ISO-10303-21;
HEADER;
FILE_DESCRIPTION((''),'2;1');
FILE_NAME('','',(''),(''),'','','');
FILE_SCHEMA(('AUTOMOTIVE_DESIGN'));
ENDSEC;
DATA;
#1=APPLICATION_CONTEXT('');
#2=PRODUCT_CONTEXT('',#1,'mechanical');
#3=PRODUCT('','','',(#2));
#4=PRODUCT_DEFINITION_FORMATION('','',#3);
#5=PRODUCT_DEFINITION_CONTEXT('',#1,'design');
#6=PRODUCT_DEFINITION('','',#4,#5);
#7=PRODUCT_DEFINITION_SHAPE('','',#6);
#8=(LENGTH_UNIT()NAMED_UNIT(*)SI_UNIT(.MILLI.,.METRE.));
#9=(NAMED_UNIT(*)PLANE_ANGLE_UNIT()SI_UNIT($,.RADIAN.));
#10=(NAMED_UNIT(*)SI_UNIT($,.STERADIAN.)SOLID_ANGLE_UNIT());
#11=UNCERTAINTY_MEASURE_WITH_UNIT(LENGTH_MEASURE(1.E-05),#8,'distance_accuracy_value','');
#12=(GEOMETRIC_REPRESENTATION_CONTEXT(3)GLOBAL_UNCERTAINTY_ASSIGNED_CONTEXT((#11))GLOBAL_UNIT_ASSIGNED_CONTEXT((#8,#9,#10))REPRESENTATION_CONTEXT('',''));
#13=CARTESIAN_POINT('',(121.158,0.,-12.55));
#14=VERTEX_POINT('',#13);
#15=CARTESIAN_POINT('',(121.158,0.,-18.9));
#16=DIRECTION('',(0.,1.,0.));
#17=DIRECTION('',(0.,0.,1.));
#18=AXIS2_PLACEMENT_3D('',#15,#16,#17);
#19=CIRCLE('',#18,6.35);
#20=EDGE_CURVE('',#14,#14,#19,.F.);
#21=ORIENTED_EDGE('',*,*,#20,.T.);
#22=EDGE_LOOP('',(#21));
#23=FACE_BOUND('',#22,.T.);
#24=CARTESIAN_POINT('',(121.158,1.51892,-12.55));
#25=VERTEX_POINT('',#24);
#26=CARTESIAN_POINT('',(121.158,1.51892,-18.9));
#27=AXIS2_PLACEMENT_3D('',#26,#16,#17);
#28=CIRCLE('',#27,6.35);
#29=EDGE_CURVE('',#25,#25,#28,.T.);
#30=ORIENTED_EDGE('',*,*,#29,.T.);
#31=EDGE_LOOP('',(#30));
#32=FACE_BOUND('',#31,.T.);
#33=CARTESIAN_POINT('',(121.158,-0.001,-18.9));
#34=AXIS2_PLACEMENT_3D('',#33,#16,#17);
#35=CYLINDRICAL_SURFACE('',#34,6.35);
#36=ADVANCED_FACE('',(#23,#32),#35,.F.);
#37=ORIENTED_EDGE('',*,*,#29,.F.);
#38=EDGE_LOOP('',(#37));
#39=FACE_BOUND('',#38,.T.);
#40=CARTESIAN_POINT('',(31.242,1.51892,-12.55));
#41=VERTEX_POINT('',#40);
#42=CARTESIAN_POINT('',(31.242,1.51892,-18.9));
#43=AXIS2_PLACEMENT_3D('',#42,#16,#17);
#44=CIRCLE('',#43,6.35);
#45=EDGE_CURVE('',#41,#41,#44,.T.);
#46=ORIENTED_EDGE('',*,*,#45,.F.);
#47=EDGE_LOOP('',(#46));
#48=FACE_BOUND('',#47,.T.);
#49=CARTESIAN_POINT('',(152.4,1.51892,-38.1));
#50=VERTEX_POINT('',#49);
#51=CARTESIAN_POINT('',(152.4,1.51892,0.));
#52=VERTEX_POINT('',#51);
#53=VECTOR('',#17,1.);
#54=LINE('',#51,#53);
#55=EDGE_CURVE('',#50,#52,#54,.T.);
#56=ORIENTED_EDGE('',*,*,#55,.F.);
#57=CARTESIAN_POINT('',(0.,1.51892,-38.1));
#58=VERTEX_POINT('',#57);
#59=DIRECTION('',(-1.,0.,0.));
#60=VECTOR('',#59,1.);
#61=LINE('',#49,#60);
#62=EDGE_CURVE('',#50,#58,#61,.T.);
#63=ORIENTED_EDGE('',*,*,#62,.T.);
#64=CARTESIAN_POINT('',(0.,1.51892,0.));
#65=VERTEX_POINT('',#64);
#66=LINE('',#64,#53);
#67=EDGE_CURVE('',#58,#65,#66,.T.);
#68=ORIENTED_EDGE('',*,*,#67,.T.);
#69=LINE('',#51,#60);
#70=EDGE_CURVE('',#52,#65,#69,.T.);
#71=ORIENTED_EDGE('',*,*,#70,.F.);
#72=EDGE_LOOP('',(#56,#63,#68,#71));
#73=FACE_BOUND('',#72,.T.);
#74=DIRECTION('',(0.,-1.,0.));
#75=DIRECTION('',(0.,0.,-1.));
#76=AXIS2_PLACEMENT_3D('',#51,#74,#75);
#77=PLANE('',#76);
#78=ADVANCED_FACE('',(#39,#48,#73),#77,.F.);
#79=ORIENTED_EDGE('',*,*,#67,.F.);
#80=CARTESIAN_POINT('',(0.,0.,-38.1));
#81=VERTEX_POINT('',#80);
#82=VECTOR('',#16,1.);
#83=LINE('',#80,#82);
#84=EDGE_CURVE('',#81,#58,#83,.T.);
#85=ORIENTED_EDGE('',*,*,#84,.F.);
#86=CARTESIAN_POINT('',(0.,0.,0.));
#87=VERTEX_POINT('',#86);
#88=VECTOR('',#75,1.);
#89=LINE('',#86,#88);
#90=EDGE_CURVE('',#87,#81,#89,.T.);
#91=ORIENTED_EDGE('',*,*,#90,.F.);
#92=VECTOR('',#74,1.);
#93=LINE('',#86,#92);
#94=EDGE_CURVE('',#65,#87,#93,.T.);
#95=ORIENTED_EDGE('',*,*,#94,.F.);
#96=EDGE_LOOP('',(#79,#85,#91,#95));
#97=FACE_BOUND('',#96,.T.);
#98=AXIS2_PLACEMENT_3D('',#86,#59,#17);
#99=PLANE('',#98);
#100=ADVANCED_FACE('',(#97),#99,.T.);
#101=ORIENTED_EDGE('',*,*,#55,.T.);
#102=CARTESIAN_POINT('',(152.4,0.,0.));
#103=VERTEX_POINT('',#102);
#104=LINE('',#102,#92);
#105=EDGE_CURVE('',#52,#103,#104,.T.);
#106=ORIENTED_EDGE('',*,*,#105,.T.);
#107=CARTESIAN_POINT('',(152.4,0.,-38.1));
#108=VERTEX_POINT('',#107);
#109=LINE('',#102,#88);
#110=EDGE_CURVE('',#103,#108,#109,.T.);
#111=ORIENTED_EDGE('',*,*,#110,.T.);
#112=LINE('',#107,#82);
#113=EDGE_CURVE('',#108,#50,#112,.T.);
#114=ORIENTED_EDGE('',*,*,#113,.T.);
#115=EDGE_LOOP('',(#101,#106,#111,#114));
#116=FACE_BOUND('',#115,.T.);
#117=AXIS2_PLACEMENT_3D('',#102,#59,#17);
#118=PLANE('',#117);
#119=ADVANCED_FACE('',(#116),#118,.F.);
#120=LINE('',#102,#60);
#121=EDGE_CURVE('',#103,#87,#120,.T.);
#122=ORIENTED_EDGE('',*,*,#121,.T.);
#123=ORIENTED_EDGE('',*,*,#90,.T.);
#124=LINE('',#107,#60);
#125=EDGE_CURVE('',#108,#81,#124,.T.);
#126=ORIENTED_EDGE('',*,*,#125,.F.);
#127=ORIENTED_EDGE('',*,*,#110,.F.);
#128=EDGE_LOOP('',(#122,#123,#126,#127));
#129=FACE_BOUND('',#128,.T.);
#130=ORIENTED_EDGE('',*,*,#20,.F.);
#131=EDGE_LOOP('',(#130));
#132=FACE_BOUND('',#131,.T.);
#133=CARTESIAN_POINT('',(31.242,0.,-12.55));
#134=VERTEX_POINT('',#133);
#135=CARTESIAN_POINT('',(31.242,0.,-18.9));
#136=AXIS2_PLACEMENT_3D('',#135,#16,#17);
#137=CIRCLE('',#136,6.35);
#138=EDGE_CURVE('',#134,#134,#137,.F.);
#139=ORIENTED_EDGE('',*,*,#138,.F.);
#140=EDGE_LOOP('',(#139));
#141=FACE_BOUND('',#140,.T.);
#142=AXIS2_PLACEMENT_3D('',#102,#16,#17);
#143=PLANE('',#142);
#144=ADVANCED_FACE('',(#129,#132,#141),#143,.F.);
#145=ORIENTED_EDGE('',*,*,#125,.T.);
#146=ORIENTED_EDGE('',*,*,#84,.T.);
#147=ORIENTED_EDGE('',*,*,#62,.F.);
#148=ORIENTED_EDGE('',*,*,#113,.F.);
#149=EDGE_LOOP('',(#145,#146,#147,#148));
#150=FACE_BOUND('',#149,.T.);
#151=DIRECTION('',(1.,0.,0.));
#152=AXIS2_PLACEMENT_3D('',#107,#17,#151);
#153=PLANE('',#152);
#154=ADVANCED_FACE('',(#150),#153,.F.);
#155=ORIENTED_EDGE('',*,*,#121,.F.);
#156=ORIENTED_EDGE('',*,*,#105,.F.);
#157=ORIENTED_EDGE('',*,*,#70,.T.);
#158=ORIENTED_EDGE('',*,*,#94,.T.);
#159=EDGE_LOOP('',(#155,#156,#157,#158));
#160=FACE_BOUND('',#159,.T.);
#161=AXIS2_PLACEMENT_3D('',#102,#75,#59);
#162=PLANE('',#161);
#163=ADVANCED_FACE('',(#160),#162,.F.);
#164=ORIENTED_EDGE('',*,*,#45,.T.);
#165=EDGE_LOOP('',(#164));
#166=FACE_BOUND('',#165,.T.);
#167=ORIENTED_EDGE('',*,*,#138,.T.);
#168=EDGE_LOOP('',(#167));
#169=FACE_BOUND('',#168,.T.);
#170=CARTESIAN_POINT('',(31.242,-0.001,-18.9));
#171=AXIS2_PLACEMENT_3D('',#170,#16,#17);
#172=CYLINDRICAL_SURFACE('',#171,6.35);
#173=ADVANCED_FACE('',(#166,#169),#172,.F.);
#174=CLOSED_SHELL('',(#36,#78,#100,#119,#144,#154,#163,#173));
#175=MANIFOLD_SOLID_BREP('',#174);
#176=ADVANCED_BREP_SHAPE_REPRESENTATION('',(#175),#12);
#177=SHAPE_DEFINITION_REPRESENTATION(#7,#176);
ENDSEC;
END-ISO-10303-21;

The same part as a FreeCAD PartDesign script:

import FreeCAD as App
import Part
import Sketcher
Q = App.Units.Quantity


def add_polygon(sketch, points):
    """Adds a closed chain of lines whose ends are joined by coincident constraints."""
    first, n = sketch.GeometryCount, len(points)
    for a, b in zip(points, points[1:] + points[:1]):
        sketch.addGeometry(Part.LineSegment(App.Vector(*a, 0), App.Vector(*b, 0)), False)
    for i in range(n):
        sketch.addConstraint(Sketcher.Constraint("Coincident", first + i, 2, first + (i + 1) % n, 1))

doc = App.newDocument("Part")
body = doc.addObject("PartDesign::Body", "Body")

sketch1 = body.newObject("Sketcher::SketchObject", "Sketch")
sketch1.AttachmentSupport = (doc.getObject("YZ_Plane"), [""])
sketch1.MapMode = "FlatFace"
add_polygon(sketch1, [(1.51892, 0), (0, 0), (0, -38.1), (1.51892, -38.1)])
sketch1.addConstraint(Sketcher.Constraint("Horizontal", 0))
sketch1.addConstraint(Sketcher.Constraint("Vertical", 1))
sketch1.addConstraint(Sketcher.Constraint("Horizontal", 2))
sketch1.addConstraint(Sketcher.Constraint("Vertical", 3))
sketch1.addConstraint(Sketcher.Constraint("Coincident", 0, 2, -1, 1))
sketch1.addConstraint(Sketcher.Constraint("DistanceY", 1, 2, 1, 1, Q("1.5 in")))
sketch1.addConstraint(Sketcher.Constraint("DistanceX", 0, 2, 0, 1, Q("0.0598 in")))
pad1 = body.newObject("PartDesign::Pad", "Pad")
pad1.Profile = sketch1
pad1.Length = Q("6 in")

sketch2 = body.newObject("Sketcher::SketchObject", "Sketch001")
sketch2.AttachmentSupport = (doc.getObject("XZ_Plane"), [""])
sketch2.MapMode = "FlatFace"
sketch2.AttachmentOffset = App.Placement(App.Vector(0, 0, -0.0598 * 25.4), App.Rotation())
sketch2.addGeometry(Part.Circle(App.Vector(31.242, -18.9, 0), App.Vector(0, 0, 1), 6.35), False)
sketch2.addConstraint(Sketcher.Constraint("Diameter", 0, Q("0.5 in")))
sketch2.addConstraint(Sketcher.Constraint("DistanceX", -1, 1, 0, 3, Q("1.23 in")))
sketch2.addConstraint(Sketcher.Constraint("DistanceY", 0, 3, -1, 1, 18.9))
pocket1 = body.newObject("PartDesign::Pocket", "Pocket")
pocket1.Profile = sketch2
pocket1.Type = "UpToFirst"
pocket1.Reversed = True

sketch3 = body.newObject("Sketcher::SketchObject", "Sketch002")
sketch3.AttachmentSupport = (doc.getObject("XZ_Plane"), [""])
sketch3.MapMode = "FlatFace"
sketch3.AttachmentOffset = App.Placement(App.Vector(0, 0, -0.0598 * 25.4), App.Rotation())
sketch3.addGeometry(Part.Circle(App.Vector(121.158, -18.9, 0), App.Vector(0, 0, 1), 6.35), False)
sketch3.addConstraint(Sketcher.Constraint("Diameter", 0, Q("0.5 in")))
sketch3.addConstraint(Sketcher.Constraint("DistanceX", -1, 1, 0, 3, Q("4.77 in")))
sketch3.addConstraint(Sketcher.Constraint("DistanceY", 0, 3, -1, 1, 18.9))
pocket2 = body.newObject("PartDesign::Pocket", "Pocket001")
pocket2.Profile = sketch3
pocket2.Type = "UpToFirst"
pocket2.Reversed = True

doc.recompute()
